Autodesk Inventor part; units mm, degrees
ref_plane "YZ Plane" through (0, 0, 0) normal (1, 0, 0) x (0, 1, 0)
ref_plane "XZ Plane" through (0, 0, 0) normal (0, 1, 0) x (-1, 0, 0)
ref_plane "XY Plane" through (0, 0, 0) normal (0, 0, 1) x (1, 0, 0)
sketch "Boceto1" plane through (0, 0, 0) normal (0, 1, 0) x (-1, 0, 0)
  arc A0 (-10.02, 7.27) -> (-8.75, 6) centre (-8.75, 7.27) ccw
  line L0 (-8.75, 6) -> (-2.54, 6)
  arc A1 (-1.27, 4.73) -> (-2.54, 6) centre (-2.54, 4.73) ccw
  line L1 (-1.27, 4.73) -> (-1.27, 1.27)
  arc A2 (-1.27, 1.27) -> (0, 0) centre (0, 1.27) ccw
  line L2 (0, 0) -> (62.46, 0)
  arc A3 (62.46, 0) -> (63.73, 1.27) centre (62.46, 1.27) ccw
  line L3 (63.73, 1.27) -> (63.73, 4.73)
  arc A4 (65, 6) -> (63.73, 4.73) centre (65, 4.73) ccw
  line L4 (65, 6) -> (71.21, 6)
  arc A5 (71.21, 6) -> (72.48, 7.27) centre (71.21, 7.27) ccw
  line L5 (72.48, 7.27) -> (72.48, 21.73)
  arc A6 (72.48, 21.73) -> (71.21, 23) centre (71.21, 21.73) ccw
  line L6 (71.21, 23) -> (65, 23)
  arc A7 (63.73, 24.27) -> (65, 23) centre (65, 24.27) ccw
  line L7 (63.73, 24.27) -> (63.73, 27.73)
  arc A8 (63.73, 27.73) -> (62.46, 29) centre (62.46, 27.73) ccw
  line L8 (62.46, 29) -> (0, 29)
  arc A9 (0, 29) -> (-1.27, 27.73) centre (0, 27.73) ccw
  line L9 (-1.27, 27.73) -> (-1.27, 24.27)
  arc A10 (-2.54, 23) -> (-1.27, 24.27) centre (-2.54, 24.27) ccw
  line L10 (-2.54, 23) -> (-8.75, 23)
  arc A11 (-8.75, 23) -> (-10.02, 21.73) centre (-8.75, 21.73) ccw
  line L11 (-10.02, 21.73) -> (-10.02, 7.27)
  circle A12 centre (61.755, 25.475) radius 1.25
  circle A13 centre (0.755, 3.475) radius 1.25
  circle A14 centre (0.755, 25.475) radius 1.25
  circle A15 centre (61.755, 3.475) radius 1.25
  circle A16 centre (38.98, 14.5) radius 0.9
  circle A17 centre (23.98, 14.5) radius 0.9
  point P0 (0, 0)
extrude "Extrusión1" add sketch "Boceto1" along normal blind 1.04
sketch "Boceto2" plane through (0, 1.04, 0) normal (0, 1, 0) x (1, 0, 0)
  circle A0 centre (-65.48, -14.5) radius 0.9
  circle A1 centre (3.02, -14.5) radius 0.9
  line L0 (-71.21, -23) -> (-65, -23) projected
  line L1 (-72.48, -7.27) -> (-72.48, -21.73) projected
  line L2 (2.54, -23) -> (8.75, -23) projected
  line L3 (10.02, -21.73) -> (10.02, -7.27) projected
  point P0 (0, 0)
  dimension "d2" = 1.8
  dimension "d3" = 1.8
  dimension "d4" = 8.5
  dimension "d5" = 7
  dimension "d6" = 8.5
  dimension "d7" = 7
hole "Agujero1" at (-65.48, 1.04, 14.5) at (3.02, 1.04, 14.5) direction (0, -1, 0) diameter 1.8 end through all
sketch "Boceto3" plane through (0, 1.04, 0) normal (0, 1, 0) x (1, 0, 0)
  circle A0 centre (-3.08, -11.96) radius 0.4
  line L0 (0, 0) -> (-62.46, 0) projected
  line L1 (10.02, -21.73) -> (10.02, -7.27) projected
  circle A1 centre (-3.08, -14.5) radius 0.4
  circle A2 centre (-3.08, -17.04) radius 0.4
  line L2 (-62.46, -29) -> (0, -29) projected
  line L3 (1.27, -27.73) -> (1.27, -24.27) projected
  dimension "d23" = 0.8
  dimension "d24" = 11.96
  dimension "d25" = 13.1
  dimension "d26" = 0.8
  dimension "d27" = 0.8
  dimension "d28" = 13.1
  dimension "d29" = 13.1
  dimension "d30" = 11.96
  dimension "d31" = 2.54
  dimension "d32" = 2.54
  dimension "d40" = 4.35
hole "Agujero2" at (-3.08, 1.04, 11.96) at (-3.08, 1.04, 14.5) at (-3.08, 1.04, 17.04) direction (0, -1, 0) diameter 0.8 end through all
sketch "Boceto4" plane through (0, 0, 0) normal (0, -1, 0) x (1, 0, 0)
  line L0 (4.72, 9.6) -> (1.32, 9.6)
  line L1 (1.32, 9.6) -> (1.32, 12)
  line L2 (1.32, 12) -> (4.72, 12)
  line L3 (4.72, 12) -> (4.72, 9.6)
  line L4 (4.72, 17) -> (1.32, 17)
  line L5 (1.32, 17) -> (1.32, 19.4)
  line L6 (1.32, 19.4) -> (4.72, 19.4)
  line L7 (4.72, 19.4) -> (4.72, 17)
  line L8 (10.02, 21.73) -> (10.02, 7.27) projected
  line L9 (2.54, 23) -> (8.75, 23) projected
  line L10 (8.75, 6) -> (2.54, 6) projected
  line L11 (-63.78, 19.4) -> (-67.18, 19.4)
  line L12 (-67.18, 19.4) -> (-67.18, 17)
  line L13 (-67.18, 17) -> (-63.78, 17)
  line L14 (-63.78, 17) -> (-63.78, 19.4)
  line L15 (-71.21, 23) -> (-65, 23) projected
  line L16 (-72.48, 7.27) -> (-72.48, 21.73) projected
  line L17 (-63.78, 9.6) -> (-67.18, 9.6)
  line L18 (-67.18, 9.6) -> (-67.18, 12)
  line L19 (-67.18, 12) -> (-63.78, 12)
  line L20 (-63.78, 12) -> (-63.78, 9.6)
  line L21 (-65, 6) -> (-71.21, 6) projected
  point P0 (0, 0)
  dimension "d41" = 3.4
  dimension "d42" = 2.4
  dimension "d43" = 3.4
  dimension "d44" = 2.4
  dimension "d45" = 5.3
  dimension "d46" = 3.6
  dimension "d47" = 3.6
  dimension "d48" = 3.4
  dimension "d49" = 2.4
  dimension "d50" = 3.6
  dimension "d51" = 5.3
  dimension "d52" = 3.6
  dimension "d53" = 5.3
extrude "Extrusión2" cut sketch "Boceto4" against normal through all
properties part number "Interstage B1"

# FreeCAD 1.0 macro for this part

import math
import FreeCAD as App
import Part
import Sketcher
from FreeCAD import Vector

doc = App.newDocument("Part")
body = doc.addObject("PartDesign::Body", "Body")

# Sketch on XZ plane
sketch1 = body.newObject("Sketcher::SketchObject", "Sketch")
sketch1.AttachmentSupport = (doc.getObject("XZ_Plane"), [""])
sketch1.MapMode = "FlatFace"
sketch1.addGeometry([
    Part.LineSegment(Vector(10, 21.7, 0), Vector(10, 7.3, 0)),  # 0
    Part.ArcOfCircle(Part.Circle(Vector(8.8, 7.3, 0), Vector(0, 0, 1), 1.3), math.radians(-90), math.radians(0)),  # 1
    Part.LineSegment(Vector(8.8, 6, 0), Vector(2.5, 6, 0)),  # 2
    Part.ArcOfCircle(Part.Circle(Vector(2.5, 4.7, 0), Vector(0, 0, 1), 1.3), math.radians(90), math.radians(180)),  # 3
    Part.LineSegment(Vector(1.3, 4.7, 0), Vector(1.3, 1.3, 0)),  # 4
    Part.ArcOfCircle(Part.Circle(Vector(0, 1.3, 0), Vector(0, 0, 1), 1.3), math.radians(-90), math.radians(0)),  # 5
    Part.LineSegment(Vector(0, 0, 0), Vector(-62.5, 0, 0)),  # 6
    Part.ArcOfCircle(Part.Circle(Vector(-62.5, 1.3, 0), Vector(0, 0, 1), 1.3), math.radians(180), math.radians(270)),  # 7
    Part.LineSegment(Vector(-63.7, 1.3, 0), Vector(-63.7, 4.7, 0)),  # 8
    Part.ArcOfCircle(Part.Circle(Vector(-65, 4.7, 0), Vector(0, 0, 1), 1.3), math.radians(0), math.radians(90)),  # 9
    Part.LineSegment(Vector(-65, 6, 0), Vector(-71.2, 6, 0)),  # 10
    Part.ArcOfCircle(Part.Circle(Vector(-71.2, 7.3, 0), Vector(0, 0, 1), 1.3), math.radians(180), math.radians(270)),  # 11
    Part.LineSegment(Vector(-72.5, 7.3, 0), Vector(-72.5, 21.7, 0)),  # 12
    Part.ArcOfCircle(Part.Circle(Vector(-71.2, 21.7, 0), Vector(0, 0, 1), 1.3), math.radians(90), math.radians(180)),  # 13
    Part.LineSegment(Vector(-71.2, 23, 0), Vector(-65, 23, 0)),  # 14
    Part.ArcOfCircle(Part.Circle(Vector(-65, 24.3, 0), Vector(0, 0, 1), 1.3), math.radians(-90), math.radians(0)),  # 15
    Part.LineSegment(Vector(-63.7, 24.3, 0), Vector(-63.7, 27.7, 0)),  # 16
    Part.ArcOfCircle(Part.Circle(Vector(-62.5, 27.7, 0), Vector(0, 0, 1), 1.3), math.radians(90), math.radians(180)),  # 17
    Part.LineSegment(Vector(-62.5, 29, 0), Vector(0, 29, 0)),  # 18
    Part.ArcOfCircle(Part.Circle(Vector(0, 27.7, 0), Vector(0, 0, 1), 1.3), math.radians(0), math.radians(90)),  # 19
    Part.LineSegment(Vector(1.3, 27.7, 0), Vector(1.3, 24.3, 0)),  # 20
    Part.ArcOfCircle(Part.Circle(Vector(2.5, 24.3, 0), Vector(0, 0, 1), 1.3), math.radians(180), math.radians(270)),  # 21
    Part.LineSegment(Vector(2.5, 23, 0), Vector(8.8, 23, 0)),  # 22
    Part.ArcOfCircle(Part.Circle(Vector(8.8, 21.7, 0), Vector(0, 0, 1), 1.3), math.radians(0), math.radians(90)),  # 23
    Part.Circle(Vector(-0.8, 3.5, 0), Vector(0, 0, 1), 1.2),  # 24
    Part.Circle(Vector(-61.8, 3.5, 0), Vector(0, 0, 1), 1.2),  # 25
    Part.Circle(Vector(-24, 14.5, 0), Vector(0, 0, 1), 0.9),  # 26
    Part.Circle(Vector(-0.8, 25.5, 0), Vector(0, 0, 1), 1.2),  # 27
    Part.Circle(Vector(-39, 14.5, 0), Vector(0, 0, 1), 0.9),  # 28
    Part.Circle(Vector(-61.8, 25.5, 0), Vector(0, 0, 1), 1.2),  # 29
], False)
sketch1.addConstraint([
    Sketcher.Constraint("Tangent", 0, 2, 1, 2),
    Sketcher.Constraint("Tangent", 1, 1, 2, 1),
    Sketcher.Constraint("Tangent", 2, 2, 3, 1),
    Sketcher.Constraint("Tangent", 3, 2, 4, 1),
    Sketcher.Constraint("Tangent", 4, 2, 5, 2),
    Sketcher.Constraint("Tangent", 5, 1, 6, 1),
    Sketcher.Constraint("Tangent", 6, 2, 7, 2),
    Sketcher.Constraint("Tangent", 7, 1, 8, 1),
    Sketcher.Constraint("Tangent", 8, 2, 9, 1),
    Sketcher.Constraint("Tangent", 9, 2, 10, 1),
    Sketcher.Constraint("Tangent", 10, 2, 11, 2),
    Sketcher.Constraint("Tangent", 11, 1, 12, 1),
    Sketcher.Constraint("Tangent", 12, 2, 13, 2),
    Sketcher.Constraint("Tangent", 13, 1, 14, 1),
    Sketcher.Constraint("Tangent", 14, 2, 15, 1),
    Sketcher.Constraint("Tangent", 15, 2, 16, 1),
    Sketcher.Constraint("Tangent", 16, 2, 17, 2),
    Sketcher.Constraint("Tangent", 17, 1, 18, 1),
    Sketcher.Constraint("Tangent", 18, 2, 19, 2),
    Sketcher.Constraint("Tangent", 19, 1, 20, 1),
    Sketcher.Constraint("Tangent", 20, 2, 21, 1),
    Sketcher.Constraint("Tangent", 21, 2, 22, 1),
    Sketcher.Constraint("Tangent", 22, 2, 23, 2),
    Sketcher.Constraint("Tangent", 23, 1, 0, 1),
    Sketcher.Constraint("Vertical", 0),
    Sketcher.Constraint("Horizontal", 2),
    Sketcher.Constraint("Vertical", 4),
    Sketcher.Constraint("Horizontal", 6),
    Sketcher.Constraint("Vertical", 8),
    Sketcher.Constraint("Horizontal", 10),
    Sketcher.Constraint("Vertical", 12),
    Sketcher.Constraint("Horizontal", 14),
    Sketcher.Constraint("Vertical", 16),
    Sketcher.Constraint("Horizontal", 18),
    Sketcher.Constraint("Vertical", 20),
    Sketcher.Constraint("Horizontal", 22),
    Sketcher.Constraint("Coincident", 5, 1, -1, 1),
    Sketcher.Constraint("Equal", 1, 3),
    Sketcher.Constraint("Equal", 3, 5),
    Sketcher.Constraint("Equal", 5, 7),
    Sketcher.Constraint("Equal", 7, 9),
    Sketcher.Constraint("Equal", 9, 11),
    Sketcher.Constraint("Equal", 11, 13),
    Sketcher.Constraint("Equal", 13, 15),
    Sketcher.Constraint("Equal", 15, 17),
    Sketcher.Constraint("Equal", 17, 19),
    Sketcher.Constraint("Equal", 19, 21),
    Sketcher.Constraint("Equal", 21, 23),
    Sketcher.Constraint("Equal", 24, 25),
    Sketcher.Constraint("Equal", 25, 27),
    Sketcher.Constraint("Equal", 26, 28),
    Sketcher.Constraint("Equal", 27, 29),
    Sketcher.Constraint("PointOnObject", 19, 3, -2),
    Sketcher.Constraint("Horizontal", 3, 3, 9, 3),
    Sketcher.Constraint("Horizontal", 15, 3, 21, 3),
    Sketcher.Constraint("Horizontal", 24, 3, 25, 3),
    Sketcher.Constraint("Horizontal", 26, 3, 28, 3),
    Sketcher.Constraint("Horizontal", 27, 3, 29, 3),
    Sketcher.Constraint("Vertical", 9, 3, 15, 3),
    Sketcher.Constraint("Vertical", 24, 3, 27, 3),
    Sketcher.Constraint("Vertical", 25, 3, 29, 3),
    Sketcher.Constraint("Equal", 2, 10),
    Sketcher.Constraint("Equal", 8, 16),
    Sketcher.Constraint("Diameter", 24, 2.5),
    Sketcher.Constraint("Diameter", 26, 1.8),
    Sketcher.Constraint("Radius", 1, 1.27),
    Sketcher.Constraint("DistanceX", 9, 3, -1, 1, 65.0),
    Sketcher.Constraint("DistanceY", -1, 1, 1, 1, 6.0),
    Sketcher.Constraint("DistanceY", -1, 1, 13, 1, 23.0),
    Sketcher.Constraint("DistanceX", 28, 3, 26, 3, 15.0),
    Sketcher.Constraint("DistanceX", 2, 2, 2, 1, 6.21),
    Sketcher.Constraint("DistanceY", -1, 1, 26, 3, 14.5),
    Sketcher.Constraint("DistanceX", 26, 3, -1, 1, 23.98),
    Sketcher.Constraint("DistanceX", 24, 3, -1, 1, 0.755),
    Sketcher.Constraint("DistanceY", -1, 1, 24, 3, 3.475),
    Sketcher.Constraint("DistanceX", 25, 3, -1, 1, 61.755),
    Sketcher.Constraint("DistanceY", -1, 1, 27, 3, 25.475),
])
pad1 = body.newObject("PartDesign::Pad", "Pad")
pad1.Profile = sketch1
pad1.Length = 1.04
pad1.Reversed = True

# Sketch on XZ plane
sketch2 = body.newObject("Sketcher::SketchObject", "Sketch001")
sketch2.AttachmentSupport = (doc.getObject("XZ_Plane"), [""])
sketch2.MapMode = "FlatFace"
sketch2.AttachmentOffset = App.Placement(Vector(0, 0, -1.04), App.Rotation())
sketch2.addGeometry([
    Part.Circle(Vector(-65.5, 14.5, 0), Vector(0, 0, 1), 0.9),
    Part.Circle(Vector(3, 14.5, 0), Vector(0, 0, 1), 0.9),
], False)
sketch2.addConstraint([
    Sketcher.Constraint("Equal", 0, 1),
    Sketcher.Constraint("Horizontal", 0, 3, 1, 3),
    Sketcher.Constraint("Diameter", 0, 1.8),
    Sketcher.Constraint("DistanceY", -1, 1, 0, 3, 14.5),
    Sketcher.Constraint("DistanceX", 0, 3, 1, 3, 68.5),
    Sketcher.Constraint("DistanceX", 0, 3, -1, 1, 65.48),
])
doc.recompute()
hole = body.newObject("PartDesign::Hole", "Hole")
hole.Profile = sketch2
hole.ThreadType = "None"
hole.Diameter = 1.8
hole.DepthType = "ThroughAll"
hole.Reversed = True

# Sketch on XZ plane
sketch3 = body.newObject("Sketcher::SketchObject", "Sketch002")
sketch3.AttachmentSupport = (doc.getObject("XZ_Plane"), [""])
sketch3.MapMode = "FlatFace"
sketch3.AttachmentOffset = App.Placement(Vector(0, 0, -1.04), App.Rotation())
sketch3.addGeometry([
    Part.Circle(Vector(-3.08, 11.96, 0), Vector(0, 0, 1), 0.4),
    Part.Circle(Vector(-3.08, 14.5, 0), Vector(0, 0, 1), 0.4),
    Part.Circle(Vector(-3.08, 17.04, 0), Vector(0, 0, 1), 0.4),
], False)
sketch3.addConstraint([
    Sketcher.Constraint("Equal", 0, 1),
    Sketcher.Constraint("Equal", 1, 2),
    Sketcher.Constraint("Vertical", 0, 3, 1, 3),
    Sketcher.Constraint("Vertical", 1, 3, 2, 3),
    Sketcher.Constraint("Diameter", 0, 0.8),
    Sketcher.Constraint("DistanceY", -1, 1, 1, 3, 14.5),
    Sketcher.Constraint("DistanceX", 0, 3, -1, 1, 3.08),
    Sketcher.Constraint("DistanceY", -1, 1, 0, 3, 11.96),
    Sketcher.Constraint("DistanceY", -1, 1, 2, 3, 17.04),
])
doc.recompute()
hole2 = body.newObject("PartDesign::Hole", "Hole001")
hole2.Profile = sketch3
hole2.ThreadType = "None"
hole2.Diameter = 0.8
hole2.DepthType = "ThroughAll"
hole2.Reversed = True

# Sketch on XZ plane
sketch4 = body.newObject("Sketcher::SketchObject", "Sketch003")
sketch4.AttachmentSupport = (doc.getObject("XZ_Plane"), [""])
sketch4.MapMode = "FlatFace"
sketch4.addGeometry([
    Part.LineSegment(Vector(1.3, 9.6, 0), Vector(4.7, 9.6, 0)),  # 0
    Part.LineSegment(Vector(4.7, 9.6, 0), Vector(4.7, 12, 0)),  # 1
    Part.LineSegment(Vector(4.7, 12, 0), Vector(1.3, 12, 0)),  # 2
    Part.LineSegment(Vector(1.3, 12, 0), Vector(1.3, 9.6, 0)),  # 3
    Part.LineSegment(Vector(1.3, 17, 0), Vector(4.7, 17, 0)),  # 4
    Part.LineSegment(Vector(4.7, 17, 0), Vector(4.7, 19.4, 0)),  # 5
    Part.LineSegment(Vector(4.7, 19.4, 0), Vector(1.3, 19.4, 0)),  # 6
    Part.LineSegment(Vector(1.3, 19.4, 0), Vector(1.3, 17, 0)),  # 7
    Part.LineSegment(Vector(-63.8, 17, 0), Vector(-63.8, 19.4, 0)),  # 8
    Part.LineSegment(Vector(-63.8, 19.4, 0), Vector(-67.2, 19.4, 0)),  # 9
    Part.LineSegment(Vector(-67.2, 19.4, 0), Vector(-67.2, 17, 0)),  # 10
    Part.LineSegment(Vector(-67.2, 17, 0), Vector(-63.8, 17, 0)),  # 11
    Part.LineSegment(Vector(-67.2, 9.6, 0), Vector(-63.8, 9.6, 0)),  # 12
    Part.LineSegment(Vector(-63.8, 9.6, 0), Vector(-63.8, 12, 0)),  # 13
    Part.LineSegment(Vector(-63.8, 12, 0), Vector(-67.2, 12, 0)),  # 14
    Part.LineSegment(Vector(-67.2, 12, 0), Vector(-67.2, 9.6, 0)),  # 15
], False)
sketch4.addConstraint([
    Sketcher.Constraint("Coincident", 0, 2, 1, 1),
    Sketcher.Constraint("Coincident", 1, 2, 2, 1),
    Sketcher.Constraint("Coincident", 2, 2, 3, 1),
    Sketcher.Constraint("Coincident", 3, 2, 0, 1),
    Sketcher.Constraint("Coincident", 4, 2, 5, 1),
    Sketcher.Constraint("Coincident", 5, 2, 6, 1),
    Sketcher.Constraint("Coincident", 6, 2, 7, 1),
    Sketcher.Constraint("Coincident", 7, 2, 4, 1),
    Sketcher.Constraint("Coincident", 8, 2, 9, 1),
    Sketcher.Constraint("Coincident", 9, 2, 10, 1),
    Sketcher.Constraint("Coincident", 10, 2, 11, 1),
    Sketcher.Constraint("Coincident", 11, 2, 8, 1),
    Sketcher.Constraint("Coincident", 12, 2, 13, 1),
    Sketcher.Constraint("Coincident", 13, 2, 14, 1),
    Sketcher.Constraint("Coincident", 14, 2, 15, 1),
    Sketcher.Constraint("Coincident", 15, 2, 12, 1),
    Sketcher.Constraint("Horizontal", 0),
    Sketcher.Constraint("Vertical", 1),
    Sketcher.Constraint("Horizontal", 2),
    Sketcher.Constraint("Vertical", 3),
    Sketcher.Constraint("Horizontal", 4),
    Sketcher.Constraint("Vertical", 5),
    Sketcher.Constraint("Horizontal", 6),
    Sketcher.Constraint("Vertical", 7),
    Sketcher.Constraint("Vertical", 8),
    Sketcher.Constraint("Horizontal", 9),
    Sketcher.Constraint("Vertical", 10),
    Sketcher.Constraint("Horizontal", 11),
    Sketcher.Constraint("Horizontal", 12),
    Sketcher.Constraint("Vertical", 13),
    Sketcher.Constraint("Horizontal", 14),
    Sketcher.Constraint("Vertical", 15),
    Sketcher.Constraint("Horizontal", 6, 2, 8, 2),
    Sketcher.Constraint("Horizontal", 7, 2, 10, 2),
    Sketcher.Constraint("Horizontal", 3, 2, 12, 2),
    Sketcher.Constraint("Horizontal", 2, 2, 13, 2),
    Sketcher.Constraint("Vertical", 1, 2, 4, 2),
    Sketcher.Constraint("Vertical", 3, 2, 6, 2),
    Sketcher.Constraint("Vertical", 11, 2, 12, 2),
    Sketcher.Constraint("Vertical", 10, 2, 14, 2),
    Sketcher.Constraint("Equal", 6, 9),
    Sketcher.Constraint("Equal", 3, 5),
    Sketcher.Constraint("DistanceX", 0, 1, 0, 2, 3.4),
    Sketcher.Constraint("DistanceY", 1, 1, 1, 2, 2.4),
    Sketcher.Constraint("DistanceY", -1, 1, 1, 2, 12.0),
    Sketcher.Constraint("DistanceY", -1, 1, 4, 2, 17.0),
    Sketcher.Constraint("DistanceX", 8, 2, 6, 2, 65.1),
    Sketcher.Constraint("DistanceX", -1, 1, 0, 2, 4.72),
])
pocket1 = body.newObject("PartDesign::Pocket", "Pocket")
pocket1.Profile = sketch4
pocket1.Type = "ThroughAll"

doc.recompute()
